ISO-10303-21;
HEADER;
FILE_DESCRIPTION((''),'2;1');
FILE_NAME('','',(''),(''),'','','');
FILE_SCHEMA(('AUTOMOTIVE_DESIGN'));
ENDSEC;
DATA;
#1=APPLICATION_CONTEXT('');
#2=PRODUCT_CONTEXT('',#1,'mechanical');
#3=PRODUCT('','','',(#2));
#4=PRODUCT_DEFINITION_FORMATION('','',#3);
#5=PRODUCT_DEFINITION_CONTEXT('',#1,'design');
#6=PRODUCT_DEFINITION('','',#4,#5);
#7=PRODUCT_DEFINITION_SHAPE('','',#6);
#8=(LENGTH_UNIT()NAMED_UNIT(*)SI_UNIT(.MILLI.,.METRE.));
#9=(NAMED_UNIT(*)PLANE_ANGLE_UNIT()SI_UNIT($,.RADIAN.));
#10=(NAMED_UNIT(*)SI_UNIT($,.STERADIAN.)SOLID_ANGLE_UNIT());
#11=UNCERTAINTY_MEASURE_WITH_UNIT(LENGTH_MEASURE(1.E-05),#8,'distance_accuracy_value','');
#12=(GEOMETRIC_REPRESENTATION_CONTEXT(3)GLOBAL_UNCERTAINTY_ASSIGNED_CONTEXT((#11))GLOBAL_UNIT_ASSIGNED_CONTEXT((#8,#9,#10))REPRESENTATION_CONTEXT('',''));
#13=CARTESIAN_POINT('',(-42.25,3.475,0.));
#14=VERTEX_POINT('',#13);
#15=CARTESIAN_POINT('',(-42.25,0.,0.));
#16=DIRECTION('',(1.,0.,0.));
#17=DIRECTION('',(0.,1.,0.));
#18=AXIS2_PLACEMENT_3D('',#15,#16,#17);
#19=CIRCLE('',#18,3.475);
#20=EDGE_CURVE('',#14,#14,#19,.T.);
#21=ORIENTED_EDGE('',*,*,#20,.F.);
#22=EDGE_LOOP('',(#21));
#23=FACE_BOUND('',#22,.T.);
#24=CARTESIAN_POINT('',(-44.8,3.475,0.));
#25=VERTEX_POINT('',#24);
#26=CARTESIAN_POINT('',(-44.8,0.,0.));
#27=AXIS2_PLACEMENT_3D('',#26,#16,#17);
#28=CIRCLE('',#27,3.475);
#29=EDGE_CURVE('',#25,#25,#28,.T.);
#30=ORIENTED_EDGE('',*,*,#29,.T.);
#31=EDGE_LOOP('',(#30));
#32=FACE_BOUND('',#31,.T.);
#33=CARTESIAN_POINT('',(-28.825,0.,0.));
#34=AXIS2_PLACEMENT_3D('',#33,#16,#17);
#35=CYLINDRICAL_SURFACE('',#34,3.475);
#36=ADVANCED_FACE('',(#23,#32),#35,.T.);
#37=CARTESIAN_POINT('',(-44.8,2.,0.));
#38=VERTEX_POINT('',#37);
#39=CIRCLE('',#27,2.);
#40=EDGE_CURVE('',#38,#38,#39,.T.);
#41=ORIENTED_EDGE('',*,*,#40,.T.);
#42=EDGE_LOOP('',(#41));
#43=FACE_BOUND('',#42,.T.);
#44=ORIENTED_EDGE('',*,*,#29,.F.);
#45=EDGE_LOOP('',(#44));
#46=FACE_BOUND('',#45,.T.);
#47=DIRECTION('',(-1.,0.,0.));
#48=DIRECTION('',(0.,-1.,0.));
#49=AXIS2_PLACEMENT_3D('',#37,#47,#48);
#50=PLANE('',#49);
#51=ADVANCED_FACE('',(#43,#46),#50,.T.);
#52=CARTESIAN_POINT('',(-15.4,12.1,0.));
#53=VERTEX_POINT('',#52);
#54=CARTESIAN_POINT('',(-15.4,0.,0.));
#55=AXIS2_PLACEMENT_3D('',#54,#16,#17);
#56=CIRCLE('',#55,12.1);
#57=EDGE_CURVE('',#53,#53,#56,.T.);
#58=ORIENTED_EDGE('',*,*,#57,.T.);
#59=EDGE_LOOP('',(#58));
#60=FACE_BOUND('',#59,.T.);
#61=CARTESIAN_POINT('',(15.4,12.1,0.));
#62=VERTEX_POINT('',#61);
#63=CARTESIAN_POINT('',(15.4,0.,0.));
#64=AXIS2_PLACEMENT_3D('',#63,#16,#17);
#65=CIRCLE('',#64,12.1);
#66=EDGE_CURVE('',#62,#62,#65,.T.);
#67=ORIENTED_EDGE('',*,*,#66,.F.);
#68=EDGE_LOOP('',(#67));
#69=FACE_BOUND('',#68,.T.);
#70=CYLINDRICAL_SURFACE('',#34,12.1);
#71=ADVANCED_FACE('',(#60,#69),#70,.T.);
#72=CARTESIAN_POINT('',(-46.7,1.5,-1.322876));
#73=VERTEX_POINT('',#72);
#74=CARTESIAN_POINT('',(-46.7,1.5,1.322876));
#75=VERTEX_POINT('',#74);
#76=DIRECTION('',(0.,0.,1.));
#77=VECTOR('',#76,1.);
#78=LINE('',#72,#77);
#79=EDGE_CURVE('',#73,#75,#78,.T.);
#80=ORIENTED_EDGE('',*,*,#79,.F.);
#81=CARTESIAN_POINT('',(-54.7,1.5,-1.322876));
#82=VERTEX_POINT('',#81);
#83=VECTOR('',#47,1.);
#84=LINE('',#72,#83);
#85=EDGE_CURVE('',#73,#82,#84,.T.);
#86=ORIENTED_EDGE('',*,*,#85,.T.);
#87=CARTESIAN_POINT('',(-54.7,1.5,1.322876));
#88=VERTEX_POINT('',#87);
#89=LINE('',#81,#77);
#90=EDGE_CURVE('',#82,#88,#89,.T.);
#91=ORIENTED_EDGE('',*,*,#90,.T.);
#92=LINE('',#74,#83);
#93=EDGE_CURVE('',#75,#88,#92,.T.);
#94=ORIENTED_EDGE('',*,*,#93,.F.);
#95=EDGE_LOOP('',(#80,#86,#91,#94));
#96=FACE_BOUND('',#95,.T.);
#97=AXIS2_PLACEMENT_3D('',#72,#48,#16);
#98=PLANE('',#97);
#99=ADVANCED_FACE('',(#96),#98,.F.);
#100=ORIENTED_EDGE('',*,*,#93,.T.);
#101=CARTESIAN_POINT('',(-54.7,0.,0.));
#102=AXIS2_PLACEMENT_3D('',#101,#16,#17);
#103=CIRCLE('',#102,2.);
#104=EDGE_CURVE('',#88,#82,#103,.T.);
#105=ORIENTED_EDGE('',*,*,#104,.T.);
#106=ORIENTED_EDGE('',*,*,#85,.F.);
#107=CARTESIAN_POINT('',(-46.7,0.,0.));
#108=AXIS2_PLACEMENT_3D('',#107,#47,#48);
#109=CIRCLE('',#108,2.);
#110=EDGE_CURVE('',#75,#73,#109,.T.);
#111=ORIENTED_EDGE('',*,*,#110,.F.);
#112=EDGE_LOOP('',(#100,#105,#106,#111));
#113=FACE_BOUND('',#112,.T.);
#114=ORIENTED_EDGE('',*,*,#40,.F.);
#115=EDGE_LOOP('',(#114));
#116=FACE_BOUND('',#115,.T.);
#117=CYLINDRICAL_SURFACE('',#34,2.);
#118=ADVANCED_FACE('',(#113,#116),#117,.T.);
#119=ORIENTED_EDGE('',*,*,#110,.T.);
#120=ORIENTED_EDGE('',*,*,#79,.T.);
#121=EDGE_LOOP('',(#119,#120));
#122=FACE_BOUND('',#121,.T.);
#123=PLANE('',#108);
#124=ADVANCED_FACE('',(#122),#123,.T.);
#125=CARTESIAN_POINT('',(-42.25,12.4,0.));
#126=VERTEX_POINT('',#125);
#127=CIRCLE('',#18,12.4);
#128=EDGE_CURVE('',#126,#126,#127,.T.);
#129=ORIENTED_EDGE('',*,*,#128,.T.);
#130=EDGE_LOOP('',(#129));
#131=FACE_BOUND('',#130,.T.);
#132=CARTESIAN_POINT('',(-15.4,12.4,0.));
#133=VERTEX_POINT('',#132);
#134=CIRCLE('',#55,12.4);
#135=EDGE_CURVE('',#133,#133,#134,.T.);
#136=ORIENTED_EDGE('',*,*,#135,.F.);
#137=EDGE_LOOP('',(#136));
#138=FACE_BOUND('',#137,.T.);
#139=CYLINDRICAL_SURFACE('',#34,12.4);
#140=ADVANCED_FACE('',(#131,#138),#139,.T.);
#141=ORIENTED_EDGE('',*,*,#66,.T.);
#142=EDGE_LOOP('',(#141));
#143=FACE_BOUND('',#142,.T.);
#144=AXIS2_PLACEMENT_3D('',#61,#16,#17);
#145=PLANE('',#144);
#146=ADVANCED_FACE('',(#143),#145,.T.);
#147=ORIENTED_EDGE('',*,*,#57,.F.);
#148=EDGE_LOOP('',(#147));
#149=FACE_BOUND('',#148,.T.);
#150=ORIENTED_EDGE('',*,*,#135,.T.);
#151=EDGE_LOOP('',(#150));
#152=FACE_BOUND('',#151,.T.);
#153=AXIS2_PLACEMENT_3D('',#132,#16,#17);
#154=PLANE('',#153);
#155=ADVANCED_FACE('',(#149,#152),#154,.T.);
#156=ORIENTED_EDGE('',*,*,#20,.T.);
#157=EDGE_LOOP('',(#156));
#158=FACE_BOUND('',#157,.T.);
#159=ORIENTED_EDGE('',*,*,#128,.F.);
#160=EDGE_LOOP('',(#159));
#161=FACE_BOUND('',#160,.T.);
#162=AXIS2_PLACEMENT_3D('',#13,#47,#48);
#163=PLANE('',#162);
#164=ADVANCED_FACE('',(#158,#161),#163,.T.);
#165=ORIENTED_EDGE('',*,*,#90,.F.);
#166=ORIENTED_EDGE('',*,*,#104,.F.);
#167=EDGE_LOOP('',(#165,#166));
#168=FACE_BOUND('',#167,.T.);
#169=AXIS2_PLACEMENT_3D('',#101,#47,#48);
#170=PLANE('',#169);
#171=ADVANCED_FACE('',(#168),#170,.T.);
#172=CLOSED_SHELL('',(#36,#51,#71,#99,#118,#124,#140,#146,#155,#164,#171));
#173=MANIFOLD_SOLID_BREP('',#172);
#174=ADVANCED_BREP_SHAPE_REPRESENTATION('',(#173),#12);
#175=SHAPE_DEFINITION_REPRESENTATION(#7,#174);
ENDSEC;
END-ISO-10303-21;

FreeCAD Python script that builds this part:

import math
import FreeCAD as App
import Part
import Sketcher

V = App.Vector


def add_polygon(sketch, points):
    """Adds a closed chain of lines whose ends are joined by coincident constraints."""
    first, n = sketch.GeometryCount, len(points)
    for a, b in zip(points, points[1:] + points[:1]):
        sketch.addGeometry(Part.LineSegment(App.Vector(*a, 0), App.Vector(*b, 0)), False)
    for i in range(n):
        sketch.addConstraint(Sketcher.Constraint("Coincident", first + i, 2, first + (i + 1) % n, 1))

doc = App.newDocument("Part")
body = doc.addObject("PartDesign::Body", "Body")

# Sketch on XY plane
sketch1 = doc.addObject("Sketcher::SketchObject", "Sketch")
body.addObject(sketch1)
sketch1.AttachmentSupport = (doc.XY_Plane, [""])
sketch1.MapMode = "FlatFace"
add_polygon(sketch1, [(-15.4, 12.4), (-42.25, 12.4), (-42.25, 3.475), (-44.8, 3.475), (-44.8, 2), (-54.7, 2), (-54.7, 0), (15.4, 0), (15.4, 12.1), (-15.4, 12.1)])  # lines 0-9
sketch1.addConstraint(Sketcher.Constraint("Horizontal", 0))
sketch1.addConstraint(Sketcher.Constraint("Vertical", 1))
sketch1.addConstraint(Sketcher.Constraint("Horizontal", 2))
sketch1.addConstraint(Sketcher.Constraint("Vertical", 3))
sketch1.addConstraint(Sketcher.Constraint("Horizontal", 4))
sketch1.addConstraint(Sketcher.Constraint("Vertical", 5))
sketch1.addConstraint(Sketcher.Constraint("Horizontal", 6))
sketch1.addConstraint(Sketcher.Constraint("Vertical", 7))
sketch1.addConstraint(Sketcher.Constraint("Horizontal", 8))
sketch1.addConstraint(Sketcher.Constraint("Vertical", 9))
sketch1.addConstraint(Sketcher.Constraint("PointOnObject", 5, 2, -1))
sketch1.addConstraint(Sketcher.Constraint("DistanceY", 5, 2, 5, 1, 2.0))
sketch1.addConstraint(Sketcher.Constraint("DistanceX", 4, 2, 4, 1, 9.9))
sketch1.addConstraint(Sketcher.Constraint("DistanceX", 6, 1, 6, 2, 70.1))
sketch1.addConstraint(Sketcher.Constraint("DistanceX", 8, 2, 8, 1, 30.8))
sketch1.addConstraint(Sketcher.Constraint("DistanceY", 7, 1, 7, 2, 12.1))
sketch1.addConstraint(Sketcher.Constraint("DistanceY", 9, 1, 9, 2, 0.3))
sketch1.addConstraint(Sketcher.Constraint("DistanceX", 0, 2, 0, 1, 26.85))
sketch1.addConstraint(Sketcher.Constraint("DistanceX", 2, 2, -1, 1, 44.8))
sketch1.addConstraint(Sketcher.Constraint("DistanceY", 1, 2, 1, 1, 8.925))
revolution = doc.addObject("PartDesign::Revolution", "Revolution")
body.addObject(revolution)
revolution.Profile = sketch1
revolution.ReferenceAxis = (sketch1, ["H_Axis"])
revolution.Angle = 360

# Sketch on YZ plane
sketch2 = doc.addObject("Sketcher::SketchObject", "Sketch001")
body.addObject(sketch2)
sketch2.AttachmentSupport = (doc.YZ_Plane, [""])
sketch2.MapMode = "FlatFace"
sketch2.AttachmentOffset = App.Placement(V(0, 0, -46.7), App.Rotation())
sketch2.addGeometry(Part.LineSegment(V(1.5, -1.322876, 0), V(1.5, 1.322876, 0)), False)
sketch2.addGeometry(Part.ArcOfCircle(Part.Circle(V(0, 0, 0), V(0, 0, 1), 2), math.radians(-41.409622), math.radians(41.409622)), False)
sketch2.addConstraint(Sketcher.Constraint("Coincident", 0, 1, 1, 1))
sketch2.addConstraint(Sketcher.Constraint("Coincident", 1, 2, 0, 2))
sketch2.addConstraint(Sketcher.Constraint("Vertical", 0))
sketch2.addConstraint(Sketcher.Constraint("Coincident", 1, 3, -1, 1))
sketch2.addConstraint(Sketcher.Constraint("Radius", 1, 2.0))
sketch2.addConstraint(Sketcher.Constraint("DistanceX", -1, 1, 0, 1, 1.5))
pocket1 = doc.addObject("PartDesign::Pocket", "Pocket")
body.addObject(pocket1)
pocket1.Profile = sketch2
pocket1.Length = 8

doc.recompute()
